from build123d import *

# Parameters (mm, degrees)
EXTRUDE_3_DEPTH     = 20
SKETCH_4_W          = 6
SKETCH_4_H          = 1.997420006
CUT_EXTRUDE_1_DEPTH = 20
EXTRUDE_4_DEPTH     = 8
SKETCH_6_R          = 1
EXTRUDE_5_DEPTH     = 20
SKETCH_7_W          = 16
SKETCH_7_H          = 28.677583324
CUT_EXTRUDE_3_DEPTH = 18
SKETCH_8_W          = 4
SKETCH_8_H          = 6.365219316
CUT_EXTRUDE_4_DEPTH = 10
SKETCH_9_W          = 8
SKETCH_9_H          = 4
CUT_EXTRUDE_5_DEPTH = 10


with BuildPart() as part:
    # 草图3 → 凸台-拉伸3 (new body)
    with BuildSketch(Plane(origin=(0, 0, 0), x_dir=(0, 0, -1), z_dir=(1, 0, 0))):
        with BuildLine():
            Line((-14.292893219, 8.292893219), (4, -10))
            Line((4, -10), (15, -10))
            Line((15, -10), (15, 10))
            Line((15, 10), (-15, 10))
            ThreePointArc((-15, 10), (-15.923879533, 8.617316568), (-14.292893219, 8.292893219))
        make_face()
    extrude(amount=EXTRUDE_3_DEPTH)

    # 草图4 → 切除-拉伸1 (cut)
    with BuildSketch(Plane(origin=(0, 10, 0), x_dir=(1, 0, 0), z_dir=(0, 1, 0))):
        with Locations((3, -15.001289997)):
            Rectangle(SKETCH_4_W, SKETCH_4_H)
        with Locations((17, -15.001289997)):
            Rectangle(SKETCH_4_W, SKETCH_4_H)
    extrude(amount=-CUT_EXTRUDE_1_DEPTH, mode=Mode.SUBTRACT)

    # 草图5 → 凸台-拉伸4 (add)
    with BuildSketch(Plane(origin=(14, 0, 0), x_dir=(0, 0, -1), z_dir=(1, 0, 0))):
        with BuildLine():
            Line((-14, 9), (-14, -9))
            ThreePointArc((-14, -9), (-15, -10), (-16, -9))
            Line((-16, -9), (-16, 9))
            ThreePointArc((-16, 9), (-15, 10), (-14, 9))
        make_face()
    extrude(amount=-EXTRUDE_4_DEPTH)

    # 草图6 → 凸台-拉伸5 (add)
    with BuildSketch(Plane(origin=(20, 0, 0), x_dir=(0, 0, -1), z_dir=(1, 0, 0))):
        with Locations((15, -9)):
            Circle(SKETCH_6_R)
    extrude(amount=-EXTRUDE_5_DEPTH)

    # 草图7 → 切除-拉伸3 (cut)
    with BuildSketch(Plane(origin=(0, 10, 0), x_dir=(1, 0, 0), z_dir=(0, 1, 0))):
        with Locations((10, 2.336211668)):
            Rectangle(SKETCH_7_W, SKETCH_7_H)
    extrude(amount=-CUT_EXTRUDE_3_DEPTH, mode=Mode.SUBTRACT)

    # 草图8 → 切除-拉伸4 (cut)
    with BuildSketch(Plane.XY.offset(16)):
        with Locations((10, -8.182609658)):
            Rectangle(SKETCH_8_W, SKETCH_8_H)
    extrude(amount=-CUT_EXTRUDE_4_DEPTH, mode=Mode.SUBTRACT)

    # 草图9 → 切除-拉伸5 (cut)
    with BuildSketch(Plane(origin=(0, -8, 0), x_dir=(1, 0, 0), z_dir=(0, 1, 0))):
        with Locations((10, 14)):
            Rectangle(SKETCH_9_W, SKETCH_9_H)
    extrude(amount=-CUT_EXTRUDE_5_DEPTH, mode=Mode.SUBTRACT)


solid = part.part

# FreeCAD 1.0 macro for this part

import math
import FreeCAD as App
import Part
import Sketcher

V = App.Vector
Q = App.Units.Quantity


def add_polygon(sketch, points):
    """Adds a closed chain of lines whose ends are joined by coincident constraints."""
    first, n = sketch.GeometryCount, len(points)
    for a, b in zip(points, points[1:] + points[:1]):
        sketch.addGeometry(Part.LineSegment(App.Vector(*a, 0), App.Vector(*b, 0)), False)
    for i in range(n):
        sketch.addConstraint(Sketcher.Constraint("Coincident", first + i, 2, first + (i + 1) % n, 1))

doc = App.newDocument("Part")
body = doc.addObject("PartDesign::Body", "Body")

sketch1 = body.newObject("Sketcher::SketchObject", "Sketch")
sketch1.AttachmentSupport = (doc.getObject("YZ_Plane"), [""])
sketch1.MapMode = "FlatFace"
sketch1.addGeometry(Part.LineSegment(V(8.292893, 14.292893, 0), V(-10, -4, 0)), False)
sketch1.addGeometry(Part.LineSegment(V(-10, -4, 0), V(-10, -15, 0)), False)
sketch1.addGeometry(Part.LineSegment(V(-10, -15, 0), V(10, -15, 0)), False)
sketch1.addGeometry(Part.LineSegment(V(10, -15, 0), V(10, 15, 0)), False)
sketch1.addGeometry(Part.ArcOfCircle(Part.Circle(V(9, 15, 0), V(0, 0, 1), 1), math.radians(0), math.radians(225)), False)
sketch1.addConstraint(Sketcher.Constraint("Coincident", 0, 2, 1, 1))
sketch1.addConstraint(Sketcher.Constraint("Coincident", 1, 2, 2, 1))
sketch1.addConstraint(Sketcher.Constraint("Coincident", 2, 2, 3, 1))
sketch1.addConstraint(Sketcher.Constraint("Tangent", 3, 2, 4, 1))
sketch1.addConstraint(Sketcher.Constraint("Coincident", 4, 2, 0, 1))
sketch1.addConstraint(Sketcher.Constraint("Vertical", 1))
sketch1.addConstraint(Sketcher.Constraint("Horizontal", 2))
sketch1.addConstraint(Sketcher.Constraint("Vertical", 3))
sketch1.addConstraint(Sketcher.Constraint("Symmetric", 1, 2, 3, 2, -1, 1))
sketch1.addConstraint(Sketcher.Constraint("Radius", 4, Q("1 mm")))
sketch1.addConstraint(Sketcher.Constraint("DistanceX", 2, 1, 2, 2, Q("20 mm")))
sketch1.addConstraint(Sketcher.Constraint("DistanceY", 1, 2, 1, 1, Q("11 mm")))
sketch1.addConstraint(Sketcher.Constraint("DistanceY", 3, 1, 3, 2, Q("30 mm")))
sketch1.addConstraint(Sketcher.Constraint("Angle", 0, Q("-135 deg")))
pad1 = body.newObject("PartDesign::Pad", "Pad")
pad1.Profile = sketch1
pad1.Length = 20

sketch2 = body.newObject("Sketcher::SketchObject", "Sketch001")
sketch2.AttachmentSupport = (doc.getObject("XZ_Plane"), [""])
sketch2.MapMode = "FlatFace"
sketch2.AttachmentOffset = App.Placement(V(0, 0, -10), App.Rotation())
add_polygon(sketch2, [(0, 14.00258), (0, 16), (6, 16), (6, 14.00258)])
add_polygon(sketch2, [(14, 14.00258), (14, 16), (20, 16), (20, 14.00258)])
sketch2.addConstraint(Sketcher.Constraint("Vertical", 0))
sketch2.addConstraint(Sketcher.Constraint("Horizontal", 1))
sketch2.addConstraint(Sketcher.Constraint("Vertical", 2))
sketch2.addConstraint(Sketcher.Constraint("Horizontal", 3))
sketch2.addConstraint(Sketcher.Constraint("Vertical", 4))
sketch2.addConstraint(Sketcher.Constraint("Horizontal", 5))
sketch2.addConstraint(Sketcher.Constraint("Vertical", 6))
sketch2.addConstraint(Sketcher.Constraint("Horizontal", 7))
sketch2.addConstraint(Sketcher.Constraint("PointOnObject", 0, 2, -2))
sketch2.addConstraint(Sketcher.Constraint("Horizontal", 1, 2, 4, 2))
sketch2.addConstraint(Sketcher.Constraint("Horizontal", 3, 2, 6, 2))
sketch2.addConstraint(Sketcher.Constraint("Equal", 3, 5))
sketch2.addConstraint(Sketcher.Constraint("DistanceX", 1, 1, 1, 2, Q("6 mm")))
sketch2.addConstraint(Sketcher.Constraint("DistanceY", -1, 1, 0, 2, Q("16 mm")))
sketch2.addConstraint(Sketcher.Constraint("DistanceX", -1, 1, 4, 2, Q("14 mm")))
sketch2.addConstraint(Sketcher.Constraint("DistanceY", 0, 1, 0, 2, Q("1.99742 mm")))
pocket1 = body.newObject("PartDesign::Pocket", "Pocket")
pocket1.Profile = sketch2
pocket1.Length = 20
pocket1.Reversed = True

sketch3 = body.newObject("Sketcher::SketchObject", "Sketch002")
sketch3.AttachmentSupport = (doc.getObject("YZ_Plane"), [""])
sketch3.MapMode = "FlatFace"
sketch3.AttachmentOffset = App.Placement(V(0, 0, 14), App.Rotation())
sketch3.addGeometry(Part.LineSegment(V(-9, 14, 0), V(9, 14, 0)), False)
sketch3.addGeometry(Part.ArcOfCircle(Part.Circle(V(9, 15, 0), V(0, 0, 1), 1), math.radians(-90), math.radians(90)), False)
sketch3.addGeometry(Part.LineSegment(V(9, 16, 0), V(-9, 16, 0)), False)
sketch3.addGeometry(Part.ArcOfCircle(Part.Circle(V(-9, 15, 0), V(0, 0, 1), 1), math.radians(90), math.radians(270)), False)
sketch3.addConstraint(Sketcher.Constraint("Tangent", 0, 2, 1, 1))
sketch3.addConstraint(Sketcher.Constraint("Tangent", 1, 2, 2, 1))
sketch3.addConstraint(Sketcher.Constraint("Tangent", 2, 2, 3, 1))
sketch3.addConstraint(Sketcher.Constraint("Tangent", 3, 2, 0, 1))
sketch3.addConstraint(Sketcher.Constraint("Horizontal", 0))
sketch3.addConstraint(Sketcher.Constraint("Horizontal", 2))
sketch3.addConstraint(Sketcher.Constraint("Radius", 1, Q("1 mm")))
sketch3.addConstraint(Sketcher.Constraint("DistanceX", 0, 1, 0, 2, Q("18 mm")))
sketch3.addConstraint(Sketcher.Constraint("DistanceX", -1, 1, 1, 3, Q("9 mm")))
sketch3.addConstraint(Sketcher.Constraint("DistanceY", -1, 1, 1, 3, Q("15 mm")))
pad2 = body.newObject("PartDesign::Pad", "Pad001")
pad2.Profile = sketch3
pad2.Length = 8
pad2.Reversed = True

sketch4 = body.newObject("Sketcher::SketchObject", "Sketch003")
sketch4.AttachmentSupport = (doc.getObject("YZ_Plane"), [""])
sketch4.MapMode = "FlatFace"
sketch4.AttachmentOffset = App.Placement(V(0, 0, 20), App.Rotation())
sketch4.addGeometry(Part.Circle(V(-9, -15, 0), V(0, 0, 1), 1), False)
sketch4.addConstraint(Sketcher.Constraint("Diameter", 0, Q("2 mm")))
sketch4.addConstraint(Sketcher.Constraint("DistanceX", 0, 3, -1, 1, Q("9 mm")))
sketch4.addConstraint(Sketcher.Constraint("DistanceY", 0, 3, -1, 1, Q("15 mm")))
pad3 = body.newObject("PartDesign::Pad", "Pad002")
pad3.Profile = sketch4
pad3.Length = 20
pad3.Reversed = True

sketch5 = body.newObject("Sketcher::SketchObject", "Sketch004")
sketch5.AttachmentSupport = (doc.getObject("XZ_Plane"), [""])
sketch5.MapMode = "FlatFace"
sketch5.AttachmentOffset = App.Placement(V(0, 0, -10), App.Rotation())
add_polygon(sketch5, [(2, -16.675003), (2, 12.00258), (18, 12.00258), (18, -16.675003)])
sketch5.addConstraint(Sketcher.Constraint("Vertical", 0))
sketch5.addConstraint(Sketcher.Constraint("Horizontal", 1))
sketch5.addConstraint(Sketcher.Constraint("Vertical", 2))
sketch5.addConstraint(Sketcher.Constraint("Horizontal", 3))
sketch5.addConstraint(Sketcher.Constraint("DistanceX", 1, 1, 1, 2, Q("16 mm")))
sketch5.addConstraint(Sketcher.Constraint("DistanceX", -1, 1, 0, 2, Q("2 mm")))
sketch5.addConstraint(Sketcher.Constraint("DistanceY", 0, 1, 0, 2, Q("28.677583 mm")))
sketch5.addConstraint(Sketcher.Constraint("DistanceY", -1, 1, 0, 2, Q("12.00258 mm")))
pocket2 = body.newObject("PartDesign::Pocket", "Pocket001")
pocket2.Profile = sketch5
pocket2.Length = 18
pocket2.Reversed = True

sketch6 = body.newObject("Sketcher::SketchObject", "Sketch005")
sketch6.AttachmentSupport = (doc.getObject("XY_Plane"), [""])
sketch6.MapMode = "FlatFace"
sketch6.AttachmentOffset = App.Placement(V(0, 0, 16), App.Rotation())
add_polygon(sketch6, [(8, -5), (8, -11.365219), (12, -11.365219), (12, -5)])
sketch6.addConstraint(Sketcher.Constraint("Vertical", 0))
sketch6.addConstraint(Sketcher.Constraint("Horizontal", 1))
sketch6.addConstraint(Sketcher.Constraint("Vertical", 2))
sketch6.addConstraint(Sketcher.Constraint("Horizontal", 3))
sketch6.addConstraint(Sketcher.Constraint("DistanceX", 1, 1, 1, 2, Q("4 mm")))
sketch6.addConstraint(Sketcher.Constraint("DistanceX", -1, 1, 0, 2, Q("8 mm")))
sketch6.addConstraint(Sketcher.Constraint("DistanceY", 2, 2, -1, 1, Q("5 mm")))
sketch6.addConstraint(Sketcher.Constraint("DistanceY", 0, 2, 0, 1, Q("6.365219 mm")))
pocket3 = body.newObject("PartDesign::Pocket", "Pocket002")
pocket3.Profile = sketch6
pocket3.Length = 10

sketch7 = body.newObject("Sketcher::SketchObject", "Sketch006")
sketch7.AttachmentSupport = (doc.getObject("XZ_Plane"), [""])
sketch7.MapMode = "FlatFace"
sketch7.AttachmentOffset = App.Placement(V(0, 0, 8), App.Rotation())
add_polygon(sketch7, [(6, -16), (6, -12), (14, -12), (14, -16)])
sketch7.addConstraint(Sketcher.Constraint("Vertical", 0))
sketch7.addConstraint(Sketcher.Constraint("Horizontal", 1))
sketch7.addConstraint(Sketcher.Constraint("Vertical", 2))
sketch7.addConstraint(Sketcher.Constraint("Horizontal", 3))
sketch7.addConstraint(Sketcher.Constraint("DistanceX", 1, 1, 1, 2, Q("8 mm")))
sketch7.addConstraint(Sketcher.Constraint("DistanceY", 0, 1, 0, 2, Q("4 mm")))
sketch7.addConstraint(Sketcher.Constraint("DistanceX", -1, 1, 0, 2, Q("6 mm")))
sketch7.addConstraint(Sketcher.Constraint("DistanceY", 0, 2, -1, 1, Q("12 mm")))
pocket4 = body.newObject("PartDesign::Pocket", "Pocket003")
pocket4.Profile = sketch7
pocket4.Length = 10
pocket4.Reversed = True

doc.recompute()
